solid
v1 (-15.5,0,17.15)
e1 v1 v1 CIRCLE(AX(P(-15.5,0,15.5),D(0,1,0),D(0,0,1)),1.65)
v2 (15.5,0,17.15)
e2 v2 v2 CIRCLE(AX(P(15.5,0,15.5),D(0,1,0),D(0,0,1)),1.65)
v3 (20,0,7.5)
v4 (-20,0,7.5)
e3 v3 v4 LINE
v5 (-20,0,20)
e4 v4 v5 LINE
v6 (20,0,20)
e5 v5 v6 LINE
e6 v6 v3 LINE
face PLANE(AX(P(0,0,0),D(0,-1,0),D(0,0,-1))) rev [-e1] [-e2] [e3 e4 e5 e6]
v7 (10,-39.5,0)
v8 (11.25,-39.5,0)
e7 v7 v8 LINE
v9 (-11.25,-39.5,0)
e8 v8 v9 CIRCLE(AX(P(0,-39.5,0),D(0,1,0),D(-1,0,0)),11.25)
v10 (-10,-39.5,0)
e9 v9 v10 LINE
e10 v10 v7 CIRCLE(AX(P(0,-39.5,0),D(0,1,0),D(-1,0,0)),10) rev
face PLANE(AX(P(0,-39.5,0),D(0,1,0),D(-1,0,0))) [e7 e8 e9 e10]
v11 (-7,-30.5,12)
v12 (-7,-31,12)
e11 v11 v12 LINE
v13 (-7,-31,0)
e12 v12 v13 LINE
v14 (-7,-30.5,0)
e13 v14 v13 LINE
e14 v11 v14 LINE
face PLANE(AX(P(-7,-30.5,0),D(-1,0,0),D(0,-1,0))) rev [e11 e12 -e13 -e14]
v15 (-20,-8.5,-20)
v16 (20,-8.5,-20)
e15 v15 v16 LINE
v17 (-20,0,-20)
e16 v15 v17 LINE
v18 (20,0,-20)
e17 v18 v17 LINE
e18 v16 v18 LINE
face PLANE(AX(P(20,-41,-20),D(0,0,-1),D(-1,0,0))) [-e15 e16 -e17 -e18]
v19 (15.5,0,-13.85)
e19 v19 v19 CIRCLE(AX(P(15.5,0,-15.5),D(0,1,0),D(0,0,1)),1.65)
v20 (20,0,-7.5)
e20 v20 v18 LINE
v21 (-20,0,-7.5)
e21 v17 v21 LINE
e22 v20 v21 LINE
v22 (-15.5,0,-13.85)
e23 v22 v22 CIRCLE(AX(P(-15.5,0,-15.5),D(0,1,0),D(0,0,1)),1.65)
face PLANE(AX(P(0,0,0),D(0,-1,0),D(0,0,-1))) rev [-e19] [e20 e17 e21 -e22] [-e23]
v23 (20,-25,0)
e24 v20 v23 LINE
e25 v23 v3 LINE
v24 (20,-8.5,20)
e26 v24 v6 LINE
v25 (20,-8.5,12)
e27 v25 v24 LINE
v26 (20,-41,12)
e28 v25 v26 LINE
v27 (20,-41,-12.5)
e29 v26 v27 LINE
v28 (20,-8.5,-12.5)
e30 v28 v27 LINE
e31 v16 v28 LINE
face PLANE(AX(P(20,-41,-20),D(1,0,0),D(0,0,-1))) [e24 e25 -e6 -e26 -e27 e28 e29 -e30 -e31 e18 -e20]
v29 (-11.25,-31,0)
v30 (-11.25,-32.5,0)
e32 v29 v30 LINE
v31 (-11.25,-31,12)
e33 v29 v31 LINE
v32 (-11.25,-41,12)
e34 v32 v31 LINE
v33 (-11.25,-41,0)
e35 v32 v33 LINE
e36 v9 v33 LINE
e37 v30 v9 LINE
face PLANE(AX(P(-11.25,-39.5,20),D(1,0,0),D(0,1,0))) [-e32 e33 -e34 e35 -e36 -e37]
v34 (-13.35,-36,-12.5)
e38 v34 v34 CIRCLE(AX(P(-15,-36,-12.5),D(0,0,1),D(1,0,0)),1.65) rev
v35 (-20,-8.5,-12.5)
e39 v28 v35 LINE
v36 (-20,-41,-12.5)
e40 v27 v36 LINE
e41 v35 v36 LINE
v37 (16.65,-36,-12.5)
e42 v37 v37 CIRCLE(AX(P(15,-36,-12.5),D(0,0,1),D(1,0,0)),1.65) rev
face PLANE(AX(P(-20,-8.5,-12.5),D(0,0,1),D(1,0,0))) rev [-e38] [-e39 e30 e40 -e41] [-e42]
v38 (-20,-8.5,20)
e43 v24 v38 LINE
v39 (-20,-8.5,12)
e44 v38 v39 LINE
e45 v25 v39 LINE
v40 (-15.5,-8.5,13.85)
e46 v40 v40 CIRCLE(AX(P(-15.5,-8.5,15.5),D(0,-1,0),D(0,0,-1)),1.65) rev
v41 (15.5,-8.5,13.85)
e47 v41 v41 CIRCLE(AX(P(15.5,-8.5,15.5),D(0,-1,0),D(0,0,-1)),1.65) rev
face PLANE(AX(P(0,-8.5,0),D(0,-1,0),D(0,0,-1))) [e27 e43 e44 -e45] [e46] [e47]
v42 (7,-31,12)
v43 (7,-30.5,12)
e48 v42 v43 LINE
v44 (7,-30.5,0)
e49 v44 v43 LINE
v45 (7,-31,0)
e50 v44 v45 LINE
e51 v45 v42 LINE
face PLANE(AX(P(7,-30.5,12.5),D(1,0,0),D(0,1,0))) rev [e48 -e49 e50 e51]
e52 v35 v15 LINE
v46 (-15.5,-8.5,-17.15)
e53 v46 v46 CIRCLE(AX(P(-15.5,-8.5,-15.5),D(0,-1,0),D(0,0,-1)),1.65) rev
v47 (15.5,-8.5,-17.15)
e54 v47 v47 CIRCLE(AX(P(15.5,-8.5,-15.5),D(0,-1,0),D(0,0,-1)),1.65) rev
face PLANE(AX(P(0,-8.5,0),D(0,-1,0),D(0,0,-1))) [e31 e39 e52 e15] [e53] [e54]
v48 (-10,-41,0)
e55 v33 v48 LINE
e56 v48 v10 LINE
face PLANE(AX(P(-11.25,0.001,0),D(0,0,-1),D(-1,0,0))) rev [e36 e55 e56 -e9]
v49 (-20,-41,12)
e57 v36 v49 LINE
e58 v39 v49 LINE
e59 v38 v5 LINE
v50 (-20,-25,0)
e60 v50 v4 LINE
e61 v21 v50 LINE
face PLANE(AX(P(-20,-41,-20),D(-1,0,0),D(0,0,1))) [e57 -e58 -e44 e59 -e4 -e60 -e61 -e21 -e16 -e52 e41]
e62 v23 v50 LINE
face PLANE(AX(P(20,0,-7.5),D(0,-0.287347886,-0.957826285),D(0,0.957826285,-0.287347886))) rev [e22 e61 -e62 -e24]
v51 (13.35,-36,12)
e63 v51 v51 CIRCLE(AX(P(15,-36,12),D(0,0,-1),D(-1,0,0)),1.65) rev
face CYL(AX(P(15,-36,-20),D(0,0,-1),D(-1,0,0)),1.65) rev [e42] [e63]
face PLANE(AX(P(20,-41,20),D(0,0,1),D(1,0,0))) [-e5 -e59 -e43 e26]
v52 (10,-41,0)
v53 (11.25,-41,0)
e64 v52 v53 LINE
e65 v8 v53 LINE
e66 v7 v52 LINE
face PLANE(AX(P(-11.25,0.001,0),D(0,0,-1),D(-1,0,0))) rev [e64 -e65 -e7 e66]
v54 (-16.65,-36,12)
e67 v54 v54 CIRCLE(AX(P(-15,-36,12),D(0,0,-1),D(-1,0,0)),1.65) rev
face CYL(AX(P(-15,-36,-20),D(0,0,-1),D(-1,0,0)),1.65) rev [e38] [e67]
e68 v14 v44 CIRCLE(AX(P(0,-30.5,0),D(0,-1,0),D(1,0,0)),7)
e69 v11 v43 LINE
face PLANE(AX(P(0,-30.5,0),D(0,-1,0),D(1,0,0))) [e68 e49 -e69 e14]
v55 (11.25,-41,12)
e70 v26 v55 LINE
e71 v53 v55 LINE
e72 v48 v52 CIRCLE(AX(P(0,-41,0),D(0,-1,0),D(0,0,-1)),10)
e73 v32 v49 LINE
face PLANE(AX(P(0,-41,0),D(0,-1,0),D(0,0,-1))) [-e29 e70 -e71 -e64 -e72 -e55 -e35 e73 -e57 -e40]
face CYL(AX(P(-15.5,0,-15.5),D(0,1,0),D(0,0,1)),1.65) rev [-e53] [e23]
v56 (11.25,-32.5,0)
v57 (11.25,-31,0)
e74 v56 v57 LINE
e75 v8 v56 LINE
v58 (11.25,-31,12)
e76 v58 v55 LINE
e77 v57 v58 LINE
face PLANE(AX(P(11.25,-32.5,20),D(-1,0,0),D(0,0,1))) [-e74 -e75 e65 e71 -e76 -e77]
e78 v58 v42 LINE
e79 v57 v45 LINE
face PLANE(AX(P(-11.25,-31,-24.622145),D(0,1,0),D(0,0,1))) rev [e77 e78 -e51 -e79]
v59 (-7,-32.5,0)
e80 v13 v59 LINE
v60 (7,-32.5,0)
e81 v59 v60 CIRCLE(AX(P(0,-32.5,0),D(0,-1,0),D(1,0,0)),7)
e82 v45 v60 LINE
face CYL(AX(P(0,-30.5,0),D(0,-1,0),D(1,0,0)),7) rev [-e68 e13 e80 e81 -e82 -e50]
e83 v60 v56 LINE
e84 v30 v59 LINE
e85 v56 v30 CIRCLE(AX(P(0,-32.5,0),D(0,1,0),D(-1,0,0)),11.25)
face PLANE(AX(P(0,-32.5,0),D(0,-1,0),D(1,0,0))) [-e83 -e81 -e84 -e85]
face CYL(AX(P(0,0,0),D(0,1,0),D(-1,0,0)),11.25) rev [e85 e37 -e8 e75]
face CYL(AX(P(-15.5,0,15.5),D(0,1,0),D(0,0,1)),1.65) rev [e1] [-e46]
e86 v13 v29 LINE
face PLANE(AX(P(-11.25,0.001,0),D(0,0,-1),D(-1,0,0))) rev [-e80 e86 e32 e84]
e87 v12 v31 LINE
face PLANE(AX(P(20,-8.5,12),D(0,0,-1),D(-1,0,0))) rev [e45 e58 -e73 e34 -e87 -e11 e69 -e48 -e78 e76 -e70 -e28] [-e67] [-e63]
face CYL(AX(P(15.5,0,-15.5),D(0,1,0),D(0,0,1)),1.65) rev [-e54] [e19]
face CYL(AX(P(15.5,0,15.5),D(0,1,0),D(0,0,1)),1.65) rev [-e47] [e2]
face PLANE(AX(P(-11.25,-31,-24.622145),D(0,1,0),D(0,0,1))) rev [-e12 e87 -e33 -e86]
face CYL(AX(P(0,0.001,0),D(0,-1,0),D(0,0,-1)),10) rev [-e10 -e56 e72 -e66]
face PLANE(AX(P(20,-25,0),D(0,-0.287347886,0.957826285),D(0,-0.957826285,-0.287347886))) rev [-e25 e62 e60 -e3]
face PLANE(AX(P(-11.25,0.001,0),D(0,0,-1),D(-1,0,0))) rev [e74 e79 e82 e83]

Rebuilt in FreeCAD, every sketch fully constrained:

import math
import FreeCAD as App
import Part
import Sketcher

V = App.Vector
Q = App.Units.Quantity


def add_polygon(sketch, points):
    """Adds a closed chain of lines whose ends are joined by coincident constraints."""
    first, n = sketch.GeometryCount, len(points)
    for a, b in zip(points, points[1:] + points[:1]):
        sketch.addGeometry(Part.LineSegment(App.Vector(*a, 0), App.Vector(*b, 0)), False)
    for i in range(n):
        sketch.addConstraint(Sketcher.Constraint("Coincident", first + i, 2, first + (i + 1) % n, 1))

doc = App.newDocument("Part")
params = doc.addObject("Spreadsheet::Sheet", "Params")
for row, (alias, value) in enumerate([
    ("sketch1_width", "40 mm"),
    ("pad1_length", "41 mm"),
    ("sketch2_diameter", "3.3 mm"),
    ("hole_diameter", "3.3 mm"),
    ("sketch3_height", "7 mm"),
    ("sketch3_width", "11.25 mm"),
    ("groove_angle", "360 deg"),
    ("sketch4_diameter", "20 mm"),
    ("sketch5_diameter", "3.3 mm"),
    ("hole2_diameter", "3.3 mm"),
    ("sketch6_width", "40 mm"),
    ("sketch6_height", "7.5 mm"),
    ("pocket2_length", "32.5 mm"),
    ("sketch7_height", "7 mm"),
    ("sketch7_width", "22.5 mm"),
    ("sketch8_width", "22.5 mm"),
    ("sketch8_height", "12.5 mm"),
    ("sketch9_radius", "7 mm"),
    ("sketch9_height", "12.5 mm"),
    ("pocket5_length", "2 mm"),
    ("sketch10_height", "15 mm"),
    ("sketch11_height", "10 mm"),
    ("sketch11_width", "22.5 mm"),
    ("pocket7_length", "12.5 mm"),
    ("sketch12_width", "32.5 mm"),
    ("sketch12_height", "0.5 mm"),
], start=1):
    params.set(f"A{row}", alias)
    params.set(f"B{row}", "=" + value)
    params.setAlias(f"B{row}", alias)

body = doc.addObject("PartDesign::Body", "Body")

sketch1 = doc.addObject("Sketcher::SketchObject", "Sketch")
body.addObject(sketch1)
sketch1.AttachmentSupport = (doc.XZ_Plane, [""])
sketch1.MapMode = "FlatFace"
add_polygon(sketch1, [(-20, -20), (-20, 20), (20, 20), (20, -20)])
sketch1.addConstraint(Sketcher.Constraint("Vertical", 0))
sketch1.addConstraint(Sketcher.Constraint("Horizontal", 1))
sketch1.addConstraint(Sketcher.Constraint("Vertical", 2))
sketch1.addConstraint(Sketcher.Constraint("Horizontal", 3))
sketch1.addConstraint(Sketcher.Constraint("Symmetric", 0, 2, 2, 2, -1, 1))
sketch1.addConstraint(Sketcher.Constraint("Equal", 3, 0))
sketch1.addConstraint(Sketcher.Constraint("DistanceX", 1, 1, 1, 2, Q("40 mm")))
sketch1.setExpression("Constraints[10]", "Params.sketch1_width")
pad1 = doc.addObject("PartDesign::Pad", "Pad")
body.addObject(pad1)
pad1.Profile = sketch1
pad1.setExpression("Length", "Params.pad1_length")

sketch2 = doc.addObject("Sketcher::SketchObject", "Sketch001")
body.addObject(sketch2)
sketch2.AttachmentSupport = (doc.XZ_Plane, [""])
sketch2.MapMode = "FlatFace"
sketch2.addGeometry(Part.Circle(V(-15.5, -15.5, 0), V(0, 0, 1), 1.6), False)
sketch2.addGeometry(Part.Circle(V(15.5, -15.5, 0), V(0, 0, 1), 1.6), False)
sketch2.addGeometry(Part.Circle(V(15.5, 15.5, 0), V(0, 0, 1), 1.6), False)
sketch2.addGeometry(Part.Circle(V(-15.5, 15.5, 0), V(0, 0, 1), 1.6), False)
sketch2.addConstraint(Sketcher.Constraint("Equal", 0, 1))
sketch2.addConstraint(Sketcher.Constraint("Equal", 1, 2))
sketch2.addConstraint(Sketcher.Constraint("Equal", 2, 3))
sketch2.addConstraint(Sketcher.Constraint("Symmetric", 0, 3, 2, 3, -1, 1))
sketch2.addConstraint(Sketcher.Constraint("Symmetric", 1, 3, 3, 3, -1, 1))
sketch2.addConstraint(Sketcher.Constraint("Symmetric", 0, 3, 1, 3, -2))
sketch2.addConstraint(Sketcher.Constraint("Diameter", 0, Q("3.3 mm")))
sketch2.addConstraint(Sketcher.Constraint("DistanceX", 0, 3, 1, 3, Q("31 mm")))
sketch2.addConstraint(Sketcher.Constraint("DistanceY", 1, 3, 2, 3, Q("31 mm")))
sketch2.setExpression("Constraints[6]", "Params.sketch2_diameter")
doc.recompute()
hole = doc.addObject("PartDesign::Hole", "Hole")
body.addObject(hole)
hole.Profile = sketch2
hole.ThreadType = "None"
hole.setExpression("Diameter", "Params.hole_diameter")
hole.DepthType = "ThroughAll"
hole.Reversed = True

sketch3 = doc.addObject("Sketcher::SketchObject", "Sketch002")
body.addObject(sketch3)
sketch3.AttachmentSupport = (doc.XY_Plane, [""])
sketch3.MapMode = "FlatFace"
add_polygon(sketch3, [(0, -32), (0, -40), (11, -40), (11, -32)])
sketch3.addConstraint(Sketcher.Constraint("Vertical", 0))
sketch3.addConstraint(Sketcher.Constraint("Horizontal", 1))
sketch3.addConstraint(Sketcher.Constraint("Vertical", 2))
sketch3.addConstraint(Sketcher.Constraint("Horizontal", 3))
sketch3.addConstraint(Sketcher.Constraint("PointOnObject", 0, 2, -2))
sketch3.addConstraint(Sketcher.Constraint("DistanceY", 0, 2, 0, 1, Q("7 mm")))
sketch3.addConstraint(Sketcher.Constraint("DistanceX", 1, 1, 1, 2, Q("11.25 mm")))
sketch3.addConstraint(Sketcher.Constraint("DistanceY", 0, 2, -1, 1, Q("39.5 mm")))
sketch3.setExpression("Constraints[9]", "Params.sketch3_height")
sketch3.setExpression("Constraints[10]", "Params.sketch3_width")
groove = doc.addObject("PartDesign::Groove", "Groove")
body.addObject(groove)
groove.Profile = sketch3
groove.ReferenceAxis = (sketch3, ["V_Axis"])
groove.setExpression("Angle", "Params.groove_angle")

sketch4 = doc.addObject("Sketcher::SketchObject", "Sketch003")
body.addObject(sketch4)
sketch4.AttachmentSupport = (doc.XZ_Plane, [""])
sketch4.MapMode = "FlatFace"
sketch4.AttachmentOffset = App.Placement(V(0, 0, 41), App.Rotation())
sketch4.addGeometry(Part.Circle(V(0, 0, 0), V(0, 0, 1), 10), False)
sketch4.addConstraint(Sketcher.Constraint("Coincident", 0, 3, -1, 1))
sketch4.addConstraint(Sketcher.Constraint("Diameter", 0, Q("20 mm")))
sketch4.setExpression("Constraints[1]", "Params.sketch4_diameter")
pocket1 = doc.addObject("PartDesign::Pocket", "Pocket")
body.addObject(pocket1)
pocket1.Profile = sketch4
pocket1.Type = "UpToFirst"

sketch5 = doc.addObject("Sketcher::SketchObject", "Sketch004")
body.addObject(sketch5)
sketch5.AttachmentSupport = (doc.XY_Plane, [""])
sketch5.MapMode = "FlatFace"
sketch5.AttachmentOffset = App.Placement(V(0, 0, -20), App.Rotation())
sketch5.addGeometry(Part.Circle(V(-15, -36, 0), V(0, 0, 1), 1.6), False)
sketch5.addGeometry(Part.Circle(V(15, -36, 0), V(0, 0, 1), 1.6), False)
sketch5.addConstraint(Sketcher.Constraint("Equal", 0, 1))
sketch5.addConstraint(Sketcher.Constraint("Symmetric", 0, 3, 1, 3, -2))
sketch5.addConstraint(Sketcher.Constraint("Diameter", 0, Q("3.3 mm")))
sketch5.addConstraint(Sketcher.Constraint("DistanceX", 0, 3, -1, 1, Q("15 mm")))
sketch5.addConstraint(Sketcher.Constraint("DistanceY", 0, 3, -1, 1, Q("36 mm")))
sketch5.setExpression("Constraints[2]", "Params.sketch5_diameter")
doc.recompute()
hole2 = doc.addObject("PartDesign::Hole", "Hole001")
body.addObject(hole2)
hole2.Profile = sketch5
hole2.ThreadType = "None"
hole2.setExpression("Diameter", "Params.hole2_diameter")
hole2.DepthType = "ThroughAll"
hole2.Reversed = True

sketch6 = doc.addObject("Sketcher::SketchObject", "Sketch005")
body.addObject(sketch6)
sketch6.AttachmentSupport = (doc.XZ_Plane, [""])
sketch6.MapMode = "FlatFace"
sketch6.AttachmentOffset = App.Placement(V(0, 0, 41), App.Rotation())
add_polygon(sketch6, [(-20, -12), (-20, -20), (20, -20), (20, -12)])
add_polygon(sketch6, [(-20, 20), (-20, 12), (20, 12), (20, 20)])
sketch6.addConstraint(Sketcher.Constraint("Vertical", 0))
sketch6.addConstraint(Sketcher.Constraint("Horizontal", 1))
sketch6.addConstraint(Sketcher.Constraint("Vertical", 2))
sketch6.addConstraint(Sketcher.Constraint("Horizontal", 3))
sketch6.addConstraint(Sketcher.Constraint("Vertical", 4))
sketch6.addConstraint(Sketcher.Constraint("Horizontal", 5))
sketch6.addConstraint(Sketcher.Constraint("Vertical", 6))
sketch6.addConstraint(Sketcher.Constraint("Horizontal", 7))
sketch6.addConstraint(Sketcher.Constraint("Symmetric", 2, 2, 4, 2, -1, 1))
sketch6.addConstraint(Sketcher.Constraint("Symmetric", 0, 2, 6, 2, -1, 1))
sketch6.addConstraint(Sketcher.Constraint("Vertical", 3, 2, 4, 2))
sketch6.addConstraint(Sketcher.Constraint("DistanceX", 1, 1, 1, 2, Q("40 mm")))
sketch6.addConstraint(Sketcher.Constraint("DistanceY", 0, 2, 0, 1, Q("7.5 mm")))
sketch6.addConstraint(Sketcher.Constraint("DistanceY", 0, 2, -1, 1, Q("20 mm")))
sketch6.setExpression("Constraints[19]", "Params.sketch6_width")
sketch6.setExpression("Constraints[20]", "Params.sketch6_height")
pocket2 = doc.addObject("PartDesign::Pocket", "Pocket001")
body.addObject(pocket2)
pocket2.Profile = sketch6
pocket2.setExpression("Length", "Params.pocket2_length")

sketch7 = doc.addObject("Sketcher::SketchObject", "Sketch006")
body.addObject(sketch7)
sketch7.AttachmentSupport = (doc.XY_Plane, [""])
sketch7.MapMode = "FlatFace"
add_polygon(sketch7, [(-11, -32), (-11, -40), (11, -40), (11, -32)])
sketch7.addConstraint(Sketcher.Constraint("Vertical", 0))
sketch7.addConstraint(Sketcher.Constraint("Horizontal", 1))
sketch7.addConstraint(Sketcher.Constraint("Vertical", 2))
sketch7.addConstraint(Sketcher.Constraint("Horizontal", 3))
sketch7.addConstraint(Sketcher.Constraint("DistanceY", 0, 2, 0, 1, Q("7 mm")))
sketch7.addConstraint(Sketcher.Constraint("DistanceX", 1, 1, 1, 2, Q("22.5 mm")))
sketch7.addConstraint(Sketcher.Constraint("DistanceY", 0, 2, -1, 1, Q("39.5 mm")))
sketch7.addConstraint(Sketcher.Constraint("DistanceX", 0, 2, -1, 1, Q("11.25 mm")))
sketch7.setExpression("Constraints[8]", "Params.sketch7_height")
sketch7.setExpression("Constraints[9]", "Params.sketch7_width")
pocket3 = doc.addObject("PartDesign::Pocket", "Pocket002")
body.addObject(pocket3)
pocket3.Profile = sketch7
pocket3.Type = "ThroughAll"
pocket3.Reversed = True

sketch8 = doc.addObject("Sketcher::SketchObject", "Sketch007")
body.addObject(sketch8)
sketch8.AttachmentSupport = (doc.XZ_Plane, [""])
sketch8.MapMode = "FlatFace"
sketch8.AttachmentOffset = App.Placement(V(0, 0, 41), App.Rotation())
add_polygon(sketch8, [(-11, 12), (-11, 0), (11, 0), (11, 12)])
sketch8.addConstraint(Sketcher.Constraint("Vertical", 0))
sketch8.addConstraint(Sketcher.Constraint("Horizontal", 1))
sketch8.addConstraint(Sketcher.Constraint("Vertical", 2))
sketch8.addConstraint(Sketcher.Constraint("Horizontal", 3))
sketch8.addConstraint(Sketcher.Constraint("Symmetric", 0, 2, 1, 2, -1, 1))
sketch8.addConstraint(Sketcher.Constraint("DistanceX", 1, 1, 1, 2, Q("22.5 mm")))
sketch8.addConstraint(Sketcher.Constraint("DistanceY", 0, 2, 0, 1, Q("12.5 mm")))
sketch8.setExpression("Constraints[9]", "Params.sketch8_width")
sketch8.setExpression("Constraints[10]", "Params.sketch8_height")
pocket4 = doc.addObject("PartDesign::Pocket", "Pocket003")
body.addObject(pocket4)
pocket4.Profile = sketch8
pocket4.Type = "UpToFirst"

sketch9 = doc.addObject("Sketcher::SketchObject", "Sketch008")
body.addObject(sketch9)
sketch9.AttachmentSupport = (doc.XZ_Plane, [""])
sketch9.MapMode = "FlatFace"
sketch9.AttachmentOffset = App.Placement(V(0, 0, 32.5), App.Rotation())
sketch9.addGeometry(Part.LineSegment(V(-7, 12, 0), V(-7, 0, 0)), False)
sketch9.addGeometry(Part.ArcOfCircle(Part.Circle(V(0, 0, 0), V(0, 0, 1), 7), math.radians(180), math.radians(360)), False)
sketch9.addGeometry(Part.LineSegment(V(7, 0, 0), V(7, 12, 0)), False)
sketch9.addGeometry(Part.LineSegment(V(7, 12, 0), V(-7, 12, 0)), False)
sketch9.addConstraint(Sketcher.Constraint("Tangent", 0, 2, 1, 1))
sketch9.addConstraint(Sketcher.Constraint("Tangent", 1, 2, 2, 1))
sketch9.addConstraint(Sketcher.Constraint("Coincident", 2, 2, 3, 1))
sketch9.addConstraint(Sketcher.Constraint("Coincident", 3, 2, 0, 1))
sketch9.addConstraint(Sketcher.Constraint("Vertical", 0))
sketch9.addConstraint(Sketcher.Constraint("Vertical", 2))
sketch9.addConstraint(Sketcher.Constraint("Horizontal", 3))
sketch9.addConstraint(Sketcher.Constraint("Coincident", 1, 3, -1, 1))
sketch9.addConstraint(Sketcher.Constraint("Radius", 1, Q("7 mm")))
sketch9.addConstraint(Sketcher.Constraint("DistanceY", 0, 2, 0, 1, Q("12.5 mm")))
sketch9.setExpression("Constraints[8]", "Params.sketch9_radius")
sketch9.setExpression("Constraints[9]", "Params.sketch9_height")
pocket5 = doc.addObject("PartDesign::Pocket", "Pocket004")
body.addObject(pocket5)
pocket5.Profile = sketch9
pocket5.setExpression("Length", "Params.pocket5_length")

sketch10 = doc.addObject("Sketcher::SketchObject", "Sketch009")
body.addObject(sketch10)
sketch10.AttachmentSupport = (doc.YZ_Plane, [""])
sketch10.MapMode = "FlatFace"
sketch10.AttachmentOffset = App.Placement(V(0, 0, -20), App.Rotation())
add_polygon(sketch10, [(-25, 0), (0, 8), (0, -8)])
sketch10.addConstraint(Sketcher.Constraint("Vertical", 1))
sketch10.addConstraint(Sketcher.Constraint("Symmetric", 0, 2, 1, 2, -1, 1))
sketch10.addConstraint(Sketcher.Constraint("PointOnObject", 2, 2, -1))
sketch10.addConstraint(Sketcher.Constraint("DistanceY", 1, 2, 1, 1, Q("15 mm")))
sketch10.addConstraint(Sketcher.Constraint("DistanceX", 2, 2, -1, 1, Q("25 mm")))
sketch10.setExpression("Constraints[6]", "Params.sketch10_height")
pocket6 = doc.addObject("PartDesign::Pocket", "Pocket005")
body.addObject(pocket6)
pocket6.Profile = sketch10
pocket6.Type = "ThroughAll"
pocket6.Reversed = True

sketch11 = doc.addObject("Sketcher::SketchObject", "Sketch010")
body.addObject(sketch11)
sketch11.AttachmentSupport = (doc.XY_Plane, [""])
sketch11.MapMode = "FlatFace"
sketch11.AttachmentOffset = App.Placement(V(0, 0, 12.5), App.Rotation())
add_polygon(sketch11, [(-11, -31), (-11, -41), (11, -41), (11, -31)])
sketch11.addConstraint(Sketcher.Constraint("Vertical", 0))
sketch11.addConstraint(Sketcher.Constraint("Horizontal", 1))
sketch11.addConstraint(Sketcher.Constraint("Vertical", 2))
sketch11.addConstraint(Sketcher.Constraint("Horizontal", 3))
sketch11.addConstraint(Sketcher.Constraint("DistanceY", 0, 2, 0, 1, Q("10 mm")))
sketch11.addConstraint(Sketcher.Constraint("DistanceX", 1, 1, 1, 2, Q("22.5 mm")))
sketch11.addConstraint(Sketcher.Constraint("DistanceY", 0, 2, -1, 1, Q("41 mm")))
sketch11.addConstraint(Sketcher.Constraint("DistanceX", 0, 2, -1, 1, Q("11.25 mm")))
sketch11.setExpression("Constraints[8]", "Params.sketch11_height")
sketch11.setExpression("Constraints[9]", "Params.sketch11_width")
pocket7 = doc.addObject("PartDesign::Pocket", "Pocket006")
body.addObject(pocket7)
pocket7.Profile = sketch11
pocket7.setExpression("Length", "Params.pocket7_length")

sketch12 = doc.addObject("Sketcher::SketchObject", "Sketch011")
body.addObject(sketch12)
sketch12.AttachmentSupport = (doc.YZ_Plane, [""])
sketch12.MapMode = "FlatFace"
sketch12.AttachmentOffset = App.Placement(V(0, 0, -20), App.Rotation())
add_polygon(sketch12, [(-8.5, 12), (-41, 12), (-41, 12.5), (-8.5, 12.5)])
sketch12.addConstraint(Sketcher.Constraint("Horizontal", 0))
sketch12.addConstraint(Sketcher.Constraint("Vertical", 1))
sketch12.addConstraint(Sketcher.Constraint("Horizontal", 2))
sketch12.addConstraint(Sketcher.Constraint("Vertical", 3))
sketch12.addConstraint(Sketcher.Constraint("DistanceX", 0, 2, 0, 1, Q("32.5 mm")))
sketch12.addConstraint(Sketcher.Constraint("DistanceY", 1, 1, 1, 2, Q("0.5 mm")))
sketch12.addConstraint(Sketcher.Constraint("DistanceX", 0, 2, -1, 1, Q("41 mm")))
sketch12.addConstraint(Sketcher.Constraint("DistanceY", -1, 1, 0, 2, Q("12 mm")))
sketch12.setExpression("Constraints[8]", "Params.sketch12_width")
sketch12.setExpression("Constraints[9]", "Params.sketch12_height")
pocket8 = doc.addObject("PartDesign::Pocket", "Pocket007")
body.addObject(pocket8)
pocket8.Profile = sketch12
pocket8.Type = "ThroughAll"
pocket8.Reversed = True

doc.recompute()
